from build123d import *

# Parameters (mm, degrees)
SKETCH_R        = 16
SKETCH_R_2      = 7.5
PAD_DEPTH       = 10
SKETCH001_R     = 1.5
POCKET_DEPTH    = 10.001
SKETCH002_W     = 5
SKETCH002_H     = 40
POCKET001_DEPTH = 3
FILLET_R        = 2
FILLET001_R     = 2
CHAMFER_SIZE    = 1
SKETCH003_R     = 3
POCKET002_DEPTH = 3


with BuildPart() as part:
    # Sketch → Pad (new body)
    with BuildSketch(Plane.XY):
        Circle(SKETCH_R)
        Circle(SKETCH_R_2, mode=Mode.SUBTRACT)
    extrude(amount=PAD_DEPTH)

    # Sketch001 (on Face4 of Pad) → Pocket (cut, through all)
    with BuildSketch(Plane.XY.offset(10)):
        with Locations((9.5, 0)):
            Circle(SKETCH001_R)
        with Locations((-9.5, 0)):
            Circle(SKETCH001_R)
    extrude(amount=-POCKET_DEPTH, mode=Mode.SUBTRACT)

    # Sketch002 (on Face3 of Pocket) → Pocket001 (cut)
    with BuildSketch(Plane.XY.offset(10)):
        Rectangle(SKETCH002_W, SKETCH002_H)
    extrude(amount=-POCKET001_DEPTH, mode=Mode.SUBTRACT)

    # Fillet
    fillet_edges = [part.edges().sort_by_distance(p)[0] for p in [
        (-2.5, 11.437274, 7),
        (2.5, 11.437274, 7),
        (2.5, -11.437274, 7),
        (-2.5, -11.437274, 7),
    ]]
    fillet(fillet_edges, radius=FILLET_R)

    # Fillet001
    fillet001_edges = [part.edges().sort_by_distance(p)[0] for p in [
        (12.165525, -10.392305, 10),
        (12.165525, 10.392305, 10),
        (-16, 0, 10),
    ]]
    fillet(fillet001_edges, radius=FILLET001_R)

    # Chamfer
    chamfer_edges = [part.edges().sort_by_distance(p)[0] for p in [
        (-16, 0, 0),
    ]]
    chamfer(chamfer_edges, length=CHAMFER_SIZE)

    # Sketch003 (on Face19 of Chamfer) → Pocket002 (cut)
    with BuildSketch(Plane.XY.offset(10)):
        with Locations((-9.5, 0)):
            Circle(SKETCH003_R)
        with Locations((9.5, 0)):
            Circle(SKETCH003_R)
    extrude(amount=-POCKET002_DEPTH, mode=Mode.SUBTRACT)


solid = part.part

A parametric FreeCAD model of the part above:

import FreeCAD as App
import Part
import Sketcher

V = App.Vector
Q = App.Units.Quantity


def edges_at(feature, points):
    """Names of the edges that pass closest to the given points."""
    edges = feature.Shape.Edges
    near = lambda p: min(range(len(edges)), key=lambda i: edges[i].distToShape(Part.Vertex(*p))[0])
    return sorted({f"Edge{near(p) + 1}" for p in points})


def add_polygon(sketch, points):
    """Adds a closed chain of lines whose ends are joined by coincident constraints."""
    first, n = sketch.GeometryCount, len(points)
    for a, b in zip(points, points[1:] + points[:1]):
        sketch.addGeometry(Part.LineSegment(App.Vector(*a, 0), App.Vector(*b, 0)), False)
    for i in range(n):
        sketch.addConstraint(Sketcher.Constraint("Coincident", first + i, 2, first + (i + 1) % n, 1))

doc = App.newDocument("Part")
body = doc.addObject("PartDesign::Body", "Body")

sketch1 = doc.addObject("Sketcher::SketchObject", "Sketch")
body.addObject(sketch1)
sketch1.AttachmentSupport = (doc.XY_Plane, [""])
sketch1.MapMode = "FlatFace"
sketch1.addGeometry(Part.Circle(V(0, 0, 0), V(0, 0, 1), 16), False)
sketch1.addGeometry(Part.Circle(V(0, 0, 0), V(0, 0, 1), 7.5), False)
sketch1.addConstraint(Sketcher.Constraint("Coincident", 0, 3, -1, 1))
sketch1.addConstraint(Sketcher.Constraint("Coincident", 1, 3, -1, 1))
sketch1.addConstraint(Sketcher.Constraint("Diameter", 0, Q("32 mm")))
sketch1.addConstraint(Sketcher.Constraint("Diameter", 1, Q("15 mm")))
pad1 = doc.addObject("PartDesign::Pad", "Pad")
body.addObject(pad1)
pad1.Profile = sketch1
pad1.Length = 10

sketch2 = doc.addObject("Sketcher::SketchObject", "Sketch001")
body.addObject(sketch2)
sketch2.AttachmentSupport = (doc.XY_Plane, [""])
sketch2.MapMode = "FlatFace"
sketch2.AttachmentOffset = App.Placement(V(0, 0, 10), App.Rotation())
sketch2.addGeometry(Part.Circle(V(9.5, 0, 0), V(0, 0, 1), 1.5), False)
sketch2.addGeometry(Part.Circle(V(-9.5, 0, 0), V(0, 0, 1), 1.5), False)
sketch2.addConstraint(Sketcher.Constraint("Equal", 0, 1))
sketch2.addConstraint(Sketcher.Constraint("Symmetric", 0, 3, 1, 3, -1, 1))
sketch2.addConstraint(Sketcher.Constraint("PointOnObject", 0, 3, -1))
sketch2.addConstraint(Sketcher.Constraint("Diameter", 0, Q("3 mm")))
sketch2.addConstraint(Sketcher.Constraint("DistanceX", 1, 3, 0, 3, Q("19 mm")))
pocket1 = doc.addObject("PartDesign::Pocket", "Pocket")
body.addObject(pocket1)
pocket1.Profile = sketch2
pocket1.Type = "ThroughAll"

sketch3 = doc.addObject("Sketcher::SketchObject", "Sketch002")
body.addObject(sketch3)
sketch3.AttachmentSupport = (doc.XY_Plane, [""])
sketch3.MapMode = "FlatFace"
sketch3.AttachmentOffset = App.Placement(V(0, 0, 10), App.Rotation())
add_polygon(sketch3, [(-2.5, 20), (-2.5, -20), (2.5, -20), (2.5, 20)])
sketch3.addConstraint(Sketcher.Constraint("Vertical", 0))
sketch3.addConstraint(Sketcher.Constraint("Horizontal", 1))
sketch3.addConstraint(Sketcher.Constraint("Vertical", 2))
sketch3.addConstraint(Sketcher.Constraint("Horizontal", 3))
sketch3.addConstraint(Sketcher.Constraint("Symmetric", 0, 2, 2, 2, -1, 1))
sketch3.addConstraint(Sketcher.Constraint("DistanceX", 1, 1, 1, 2, Q("5 mm")))
sketch3.addConstraint(Sketcher.Constraint("DistanceY", 0, 2, 0, 1, Q("40 mm")))
pocket2 = doc.addObject("PartDesign::Pocket", "Pocket001")
body.addObject(pocket2)
pocket2.Profile = sketch3
pocket2.Length = 3
doc.recompute()

fillet = doc.addObject("PartDesign::Fillet", "Fillet")
body.addObject(fillet)
fillet.Base = (pocket2, edges_at(pocket2, [
    (-2.5, 11.437, 7),
    (2.5, 11.437, 7),
    (2.5, -11.437, 7),
    (-2.5, -11.437, 7),
]))
fillet.Radius = 2
doc.recompute()

fillet2 = doc.addObject("PartDesign::Fillet", "Fillet001")
body.addObject(fillet2)
fillet2.Base = (fillet, edges_at(fillet, [(12.166, -10.392, 10), (12.166, 10.392, 10), (-16, 0, 10)]))
fillet2.Radius = 2
doc.recompute()

chamfer = doc.addObject("PartDesign::Chamfer", "Chamfer")
body.addObject(chamfer)
chamfer.Base = (fillet2, edges_at(fillet2, [(-16, 0, 0)]))
chamfer.Size = 1

sketch4 = doc.addObject("Sketcher::SketchObject", "Sketch003")
body.addObject(sketch4)
sketch4.AttachmentSupport = (doc.XY_Plane, [""])
sketch4.MapMode = "FlatFace"
sketch4.AttachmentOffset = App.Placement(V(0, 0, 10), App.Rotation())
sketch4.addGeometry(Part.Circle(V(-9.5, 0, 0), V(0, 0, 1), 3), False)
sketch4.addGeometry(Part.Circle(V(9.5, 0, 0), V(0, 0, 1), 3), False)
sketch4.addConstraint(Sketcher.Constraint("Equal", 0, 1))
sketch4.addConstraint(Sketcher.Constraint("Symmetric", 0, 3, 1, 3, -1, 1))
sketch4.addConstraint(Sketcher.Constraint("PointOnObject", 0, 3, -1))
sketch4.addConstraint(Sketcher.Constraint("Diameter", 0, Q("6 mm")))
sketch4.addConstraint(Sketcher.Constraint("DistanceX", 0, 3, 1, 3, Q("19 mm")))
pocket3 = doc.addObject("PartDesign::Pocket", "Pocket002")
body.addObject(pocket3)
pocket3.Profile = sketch4
pocket3.Length = 3

doc.recompute()
